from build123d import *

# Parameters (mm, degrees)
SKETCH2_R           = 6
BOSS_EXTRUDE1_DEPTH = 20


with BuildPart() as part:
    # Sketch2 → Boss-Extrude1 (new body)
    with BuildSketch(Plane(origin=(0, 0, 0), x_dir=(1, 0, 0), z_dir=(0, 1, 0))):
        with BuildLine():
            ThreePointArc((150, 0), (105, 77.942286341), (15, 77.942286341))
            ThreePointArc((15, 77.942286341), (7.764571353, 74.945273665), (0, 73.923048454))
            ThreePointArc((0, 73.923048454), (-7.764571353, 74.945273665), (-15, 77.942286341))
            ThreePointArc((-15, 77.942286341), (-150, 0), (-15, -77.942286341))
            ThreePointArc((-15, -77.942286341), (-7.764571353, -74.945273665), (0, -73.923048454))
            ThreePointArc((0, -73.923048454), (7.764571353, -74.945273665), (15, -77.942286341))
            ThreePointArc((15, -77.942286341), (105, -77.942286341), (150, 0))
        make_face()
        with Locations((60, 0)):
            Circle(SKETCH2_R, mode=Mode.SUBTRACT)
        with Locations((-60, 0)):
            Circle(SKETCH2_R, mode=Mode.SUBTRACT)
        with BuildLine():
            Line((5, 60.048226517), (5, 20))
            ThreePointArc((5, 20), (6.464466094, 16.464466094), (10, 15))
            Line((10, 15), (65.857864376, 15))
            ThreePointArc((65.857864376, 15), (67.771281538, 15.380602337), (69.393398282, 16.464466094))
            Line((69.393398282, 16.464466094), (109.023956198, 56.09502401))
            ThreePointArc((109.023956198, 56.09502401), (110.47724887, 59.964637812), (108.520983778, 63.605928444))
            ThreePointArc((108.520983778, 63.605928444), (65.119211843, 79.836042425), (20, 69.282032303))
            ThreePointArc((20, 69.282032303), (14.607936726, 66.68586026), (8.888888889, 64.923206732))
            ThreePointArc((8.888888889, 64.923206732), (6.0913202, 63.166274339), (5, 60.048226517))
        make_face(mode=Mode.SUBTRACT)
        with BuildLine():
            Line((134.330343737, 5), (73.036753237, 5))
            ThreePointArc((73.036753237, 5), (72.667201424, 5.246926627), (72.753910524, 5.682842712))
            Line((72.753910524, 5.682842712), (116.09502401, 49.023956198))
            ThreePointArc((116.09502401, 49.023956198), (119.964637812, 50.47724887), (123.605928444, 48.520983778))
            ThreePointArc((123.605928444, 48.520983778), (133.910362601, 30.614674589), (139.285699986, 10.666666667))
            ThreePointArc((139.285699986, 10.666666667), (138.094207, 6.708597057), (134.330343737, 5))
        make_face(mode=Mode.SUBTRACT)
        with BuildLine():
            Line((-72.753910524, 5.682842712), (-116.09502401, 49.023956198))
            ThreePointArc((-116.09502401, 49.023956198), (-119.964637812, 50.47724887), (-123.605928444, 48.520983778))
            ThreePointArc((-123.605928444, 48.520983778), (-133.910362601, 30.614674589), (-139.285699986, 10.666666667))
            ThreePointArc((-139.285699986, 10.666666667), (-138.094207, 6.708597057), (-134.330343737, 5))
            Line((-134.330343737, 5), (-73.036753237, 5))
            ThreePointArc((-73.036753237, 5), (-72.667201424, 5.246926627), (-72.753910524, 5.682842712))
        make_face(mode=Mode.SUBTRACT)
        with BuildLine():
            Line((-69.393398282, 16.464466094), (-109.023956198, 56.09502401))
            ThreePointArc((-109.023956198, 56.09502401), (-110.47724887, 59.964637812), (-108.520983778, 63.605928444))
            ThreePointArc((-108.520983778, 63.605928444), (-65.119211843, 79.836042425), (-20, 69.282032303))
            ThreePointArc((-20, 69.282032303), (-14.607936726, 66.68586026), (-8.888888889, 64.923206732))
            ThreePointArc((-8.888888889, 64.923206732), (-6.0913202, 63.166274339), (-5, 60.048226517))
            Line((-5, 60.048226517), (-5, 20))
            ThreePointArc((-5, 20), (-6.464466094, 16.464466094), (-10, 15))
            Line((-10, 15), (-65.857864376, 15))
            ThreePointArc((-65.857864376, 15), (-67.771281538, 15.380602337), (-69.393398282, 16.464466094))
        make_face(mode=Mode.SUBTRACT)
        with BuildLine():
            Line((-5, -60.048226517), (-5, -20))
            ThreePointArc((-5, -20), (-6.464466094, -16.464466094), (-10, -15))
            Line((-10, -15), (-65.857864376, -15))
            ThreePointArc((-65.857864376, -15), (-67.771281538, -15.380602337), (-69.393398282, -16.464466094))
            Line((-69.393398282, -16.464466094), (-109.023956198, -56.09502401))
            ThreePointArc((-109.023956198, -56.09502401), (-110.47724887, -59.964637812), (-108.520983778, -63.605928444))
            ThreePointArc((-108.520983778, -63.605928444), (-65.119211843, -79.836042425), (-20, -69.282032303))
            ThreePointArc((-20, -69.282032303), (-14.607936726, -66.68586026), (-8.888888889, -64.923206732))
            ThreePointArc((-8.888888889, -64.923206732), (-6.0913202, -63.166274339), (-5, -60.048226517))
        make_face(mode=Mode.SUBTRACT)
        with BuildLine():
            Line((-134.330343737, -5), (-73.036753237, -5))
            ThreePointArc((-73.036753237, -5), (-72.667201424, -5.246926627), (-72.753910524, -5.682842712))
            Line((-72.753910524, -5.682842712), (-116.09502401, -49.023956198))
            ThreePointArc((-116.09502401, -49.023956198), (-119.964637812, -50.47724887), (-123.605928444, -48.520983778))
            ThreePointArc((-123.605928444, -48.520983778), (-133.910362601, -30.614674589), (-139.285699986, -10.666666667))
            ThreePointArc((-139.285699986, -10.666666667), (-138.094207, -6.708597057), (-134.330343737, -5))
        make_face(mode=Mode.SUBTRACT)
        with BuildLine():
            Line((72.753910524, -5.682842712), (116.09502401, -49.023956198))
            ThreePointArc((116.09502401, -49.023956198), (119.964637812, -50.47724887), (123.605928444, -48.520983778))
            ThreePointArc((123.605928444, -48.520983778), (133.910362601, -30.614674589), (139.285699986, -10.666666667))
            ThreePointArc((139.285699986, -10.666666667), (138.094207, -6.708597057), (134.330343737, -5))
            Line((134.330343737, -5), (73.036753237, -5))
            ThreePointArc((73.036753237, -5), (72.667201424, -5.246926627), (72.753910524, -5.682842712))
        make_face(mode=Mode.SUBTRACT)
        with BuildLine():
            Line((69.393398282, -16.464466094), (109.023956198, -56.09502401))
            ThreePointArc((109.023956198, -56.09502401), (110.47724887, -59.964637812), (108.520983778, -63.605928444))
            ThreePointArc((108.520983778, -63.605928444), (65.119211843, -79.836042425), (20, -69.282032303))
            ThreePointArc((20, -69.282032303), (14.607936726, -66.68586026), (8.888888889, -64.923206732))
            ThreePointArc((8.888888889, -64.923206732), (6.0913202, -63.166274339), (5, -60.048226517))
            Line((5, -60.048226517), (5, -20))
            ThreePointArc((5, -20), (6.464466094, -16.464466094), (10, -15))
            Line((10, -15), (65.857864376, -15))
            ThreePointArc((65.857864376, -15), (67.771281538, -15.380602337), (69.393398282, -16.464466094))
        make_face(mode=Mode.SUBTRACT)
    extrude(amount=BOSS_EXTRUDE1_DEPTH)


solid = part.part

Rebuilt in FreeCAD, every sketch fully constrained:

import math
import FreeCAD as App
import Part
import Sketcher

V = App.Vector
Q = App.Units.Quantity

doc = App.newDocument("Part")
body = doc.addObject("PartDesign::Body", "Body")

sketch1 = doc.addObject("Sketcher::SketchObject", "Sketch")
body.addObject(sketch1)
sketch1.AttachmentSupport = (doc.XZ_Plane, [""])
sketch1.MapMode = "FlatFace"
sketch1.addGeometry([
    Part.ArcOfCircle(Part.Circle(V(60, 0, 0), V(0, 0, 1), 90), math.radians(-120), math.radians(0)),
    Part.ArcOfCircle(Part.Circle(V(0, -103.92, 0), V(0, 0, 1), 30), math.radians(60), math.radians(90)),
    Part.ArcOfCircle(Part.Circle(V(0, -103.92, 0), V(0, 0, 1), 30), math.radians(90), math.radians(120)),
    Part.ArcOfCircle(Part.Circle(V(-60, 0, 0), V(0, 0, 1), 90), math.radians(60), math.radians(300)),
    Part.ArcOfCircle(Part.Circle(V(0, 103.92, 0), V(0, 0, 1), 30), math.radians(-120), math.radians(-90)),
    Part.ArcOfCircle(Part.Circle(V(0, 103.92, 0), V(0, 0, 1), 30), math.radians(-90), math.radians(-60)),
    Part.ArcOfCircle(Part.Circle(V(60, 0, 0), V(0, 0, 1), 90), math.radians(0), math.radians(120)),
    Part.LineSegment(V(-5, 20, 0), V(-5, 60.05, 0)),
    Part.ArcOfCircle(Part.Circle(V(-10, 60.05, 0), V(0, 0, 1), 5), math.radians(0), math.radians(77)),
    Part.ArcOfCircle(Part.Circle(V(0, 103.92, 0), V(0, 0, 1), 40), math.radians(-120), math.radians(-102.84)),
    Part.ArcOfCircle(Part.Circle(V(-60, 0, 0), V(0, 0, 1), 80), math.radians(60), math.radians(127)),
    Part.ArcOfCircle(Part.Circle(V(-105.49, 59.63, 0), V(0, 0, 1), 5), math.radians(127), math.radians(225)),
    Part.LineSegment(V(-109.02, 56.1, 0), V(-69.39, 16.46, 0)),
    Part.ArcOfCircle(Part.Circle(V(-65.86, 20, 0), V(0, 0, 1), 5), math.radians(-135), math.radians(-90)),
    Part.LineSegment(V(-65.86, 15, 0), V(-10, 15, 0)),
    Part.ArcOfCircle(Part.Circle(V(-10, 20, 0), V(0, 0, 1), 5), math.radians(-90), math.radians(0)),
    Part.ArcOfCircle(Part.Circle(V(-134.33, 10, 0), V(0, 0, 1), 5), math.radians(172), math.radians(270)),
    Part.LineSegment(V(-134.33, 5, 0), V(-73.04, 5, 0)),
    Part.ArcOfCircle(Part.Circle(V(-73.04, 5.4, 0), V(0, 0, 1), 0.4), math.radians(-90), math.radians(45)),
    Part.LineSegment(V(-72.75, 5.68, 0), V(-116.1, 49.02, 0)),
    Part.ArcOfCircle(Part.Circle(V(-119.63, 45.49, 0), V(0, 0, 1), 5), math.radians(45), math.radians(143)),
    Part.ArcOfCircle(Part.Circle(V(-60, 0, 0), V(0, 0, 1), 80), math.radians(143), math.radians(172)),
    Part.Circle(V(-60, 0, 0), V(0, 0, 1), 6),
    Part.ArcOfCircle(Part.Circle(V(65.86, 20, 0), V(0, 0, 1), 5), math.radians(-90), math.radians(-45)),
    Part.LineSegment(V(69.39, 16.46, 0), V(109.02, 56.1, 0)),
    Part.ArcOfCircle(Part.Circle(V(105.49, 59.63, 0), V(0, 0, 1), 5), math.radians(-45), math.radians(53)),
    Part.ArcOfCircle(Part.Circle(V(60, 0, 0), V(0, 0, 1), 80), math.radians(53), math.radians(120)),
    Part.ArcOfCircle(Part.Circle(V(0, 103.92, 0), V(0, 0, 1), 40), math.radians(-77.16), math.radians(-60)),
    Part.ArcOfCircle(Part.Circle(V(10, 60.05, 0), V(0, 0, 1), 5), math.radians(103), math.radians(180)),
    Part.LineSegment(V(5, 60.05, 0), V(5, 20, 0)),
    Part.ArcOfCircle(Part.Circle(V(10, 20, 0), V(0, 0, 1), 5), math.radians(180), math.radians(270)),
    Part.LineSegment(V(10, 15, 0), V(65.86, 15, 0)),
    Part.Circle(V(60, 0, 0), V(0, 0, 1), 6),
    Part.LineSegment(V(116.1, 49.02, 0), V(72.75, 5.68, 0)),
    Part.ArcOfCircle(Part.Circle(V(73.04, 5.4, 0), V(0, 0, 1), 0.4), math.radians(135), math.radians(270)),
    Part.LineSegment(V(73.04, 5, 0), V(134.33, 5, 0)),
    Part.ArcOfCircle(Part.Circle(V(134.33, 10, 0), V(0, 0, 1), 5), math.radians(-90), math.radians(8)),
    Part.ArcOfCircle(Part.Circle(V(60, 0, 0), V(0, 0, 1), 80), math.radians(8), math.radians(37)),
    Part.ArcOfCircle(Part.Circle(V(119.63, 45.49, 0), V(0, 0, 1), 5), math.radians(37), math.radians(135)),
    Part.LineSegment(V(-116.1, -49.02, 0), V(-72.75, -5.68, 0)),
    Part.ArcOfCircle(Part.Circle(V(-73.04, -5.4, 0), V(0, 0, 1), 0.4), math.radians(-45), math.radians(90)),
    Part.LineSegment(V(-73.04, -5, 0), V(-134.33, -5, 0)),
    Part.ArcOfCircle(Part.Circle(V(-134.33, -10, 0), V(0, 0, 1), 5), math.radians(90), math.radians(188)),
    Part.ArcOfCircle(Part.Circle(V(-60, 0, 0), V(0, 0, 1), 80), math.radians(-172), math.radians(-143)),
    Part.ArcOfCircle(Part.Circle(V(-119.63, -45.49, 0), V(0, 0, 1), 5), math.radians(-143), math.radians(-45)),
    Part.ArcOfCircle(Part.Circle(V(-65.86, -20, 0), V(0, 0, 1), 5), math.radians(90), math.radians(135)),
    Part.LineSegment(V(-69.39, -16.46, 0), V(-109.02, -56.1, 0)),
    Part.ArcOfCircle(Part.Circle(V(-105.49, -59.63, 0), V(0, 0, 1), 5), math.radians(135), math.radians(233)),
    Part.ArcOfCircle(Part.Circle(V(-60, 0, 0), V(0, 0, 1), 80), math.radians(-127), math.radians(-60)),
    Part.ArcOfCircle(Part.Circle(V(0, -103.92, 0), V(0, 0, 1), 40), math.radians(102.84), math.radians(120)),
    Part.ArcOfCircle(Part.Circle(V(-10, -60.05, 0), V(0, 0, 1), 5), math.radians(-77), math.radians(0)),
    Part.LineSegment(V(-5, -60.05, 0), V(-5, -20, 0)),
    Part.ArcOfCircle(Part.Circle(V(-10, -20, 0), V(0, 0, 1), 5), math.radians(0), math.radians(90)),
    Part.LineSegment(V(-10, -15, 0), V(-65.86, -15, 0)),
    Part.ArcOfCircle(Part.Circle(V(134.33, -10, 0), V(0, 0, 1), 5), math.radians(-8), math.radians(90)),
    Part.LineSegment(V(134.33, -5, 0), V(73.04, -5, 0)),
    Part.ArcOfCircle(Part.Circle(V(73.04, -5.4, 0), V(0, 0, 1), 0.4), math.radians(90), math.radians(225)),
    Part.LineSegment(V(72.75, -5.68, 0), V(116.1, -49.02, 0)),
    Part.ArcOfCircle(Part.Circle(V(119.63, -45.49, 0), V(0, 0, 1), 5), math.radians(-135), math.radians(-37)),
    Part.ArcOfCircle(Part.Circle(V(60, 0, 0), V(0, 0, 1), 80), math.radians(-37), math.radians(-8)),
    Part.LineSegment(V(5, -20, 0), V(5, -60.05, 0)),
    Part.ArcOfCircle(Part.Circle(V(10, -60.05, 0), V(0, 0, 1), 5), math.radians(180), math.radians(257)),
    Part.ArcOfCircle(Part.Circle(V(0, -103.92, 0), V(0, 0, 1), 40), math.radians(60), math.radians(77.16)),
    Part.ArcOfCircle(Part.Circle(V(60, 0, 0), V(0, 0, 1), 80), math.radians(-120), math.radians(-53)),
    Part.ArcOfCircle(Part.Circle(V(105.49, -59.63, 0), V(0, 0, 1), 5), math.radians(-53), math.radians(45)),
    Part.LineSegment(V(109.02, -56.1, 0), V(69.39, -16.46, 0)),
    Part.ArcOfCircle(Part.Circle(V(65.86, -20, 0), V(0, 0, 1), 5), math.radians(45), math.radians(90)),
    Part.LineSegment(V(65.86, -15, 0), V(10, -15, 0)),
    Part.ArcOfCircle(Part.Circle(V(10, -20, 0), V(0, 0, 1), 5), math.radians(90), math.radians(180)),
], False)
sketch1.addConstraint([
    Sketcher.Constraint("Tangent", 0, 1, 1, 1),
    Sketcher.Constraint("Tangent", 1, 2, 2, 1),
    Sketcher.Constraint("Tangent", 2, 2, 3, 2),
    Sketcher.Constraint("Tangent", 3, 1, 4, 1),
    Sketcher.Constraint("Tangent", 4, 2, 5, 1),
    Sketcher.Constraint("Tangent", 5, 2, 6, 2),
    Sketcher.Constraint("Tangent", 6, 1, 0, 2),
    Sketcher.Constraint("Tangent", 7, 2, 8, 1),
    Sketcher.Constraint("Tangent", 8, 2, 9, 2),
    Sketcher.Constraint("Tangent", 9, 1, 10, 1),
    Sketcher.Constraint("Tangent", 10, 2, 11, 1),
    Sketcher.Constraint("Tangent", 11, 2, 12, 1),
    Sketcher.Constraint("Tangent", 12, 2, 13, 1),
    Sketcher.Constraint("Tangent", 13, 2, 14, 1),
    Sketcher.Constraint("Tangent", 14, 2, 15, 1),
    Sketcher.Constraint("Tangent", 15, 2, 7, 1),
    Sketcher.Constraint("Tangent", 16, 2, 17, 1),
    Sketcher.Constraint("Tangent", 17, 2, 18, 1),
    Sketcher.Constraint("Tangent", 18, 2, 19, 1),
    Sketcher.Constraint("Tangent", 19, 2, 20, 1),
    Sketcher.Constraint("Tangent", 20, 2, 21, 1),
    Sketcher.Constraint("Tangent", 21, 2, 16, 1),
    Sketcher.Constraint("Tangent", 23, 2, 24, 1),
    Sketcher.Constraint("Tangent", 24, 2, 25, 1),
    Sketcher.Constraint("Tangent", 25, 2, 26, 1),
    Sketcher.Constraint("Tangent", 26, 2, 27, 2),
    Sketcher.Constraint("Tangent", 27, 1, 28, 1),
    Sketcher.Constraint("Tangent", 28, 2, 29, 1),
    Sketcher.Constraint("Tangent", 29, 2, 30, 1),
    Sketcher.Constraint("Tangent", 30, 2, 31, 1),
    Sketcher.Constraint("Tangent", 31, 2, 23, 1),
    Sketcher.Constraint("Tangent", 33, 2, 34, 1),
    Sketcher.Constraint("Tangent", 34, 2, 35, 1),
    Sketcher.Constraint("Tangent", 35, 2, 36, 1),
    Sketcher.Constraint("Tangent", 36, 2, 37, 1),
    Sketcher.Constraint("Tangent", 37, 2, 38, 1),
    Sketcher.Constraint("Tangent", 38, 2, 33, 1),
    Sketcher.Constraint("Tangent", 39, 2, 40, 1),
    Sketcher.Constraint("Tangent", 40, 2, 41, 1),
    Sketcher.Constraint("Tangent", 41, 2, 42, 1),
    Sketcher.Constraint("Tangent", 42, 2, 43, 1),
    Sketcher.Constraint("Tangent", 43, 2, 44, 1),
    Sketcher.Constraint("Tangent", 44, 2, 39, 1),
    Sketcher.Constraint("Tangent", 45, 2, 46, 1),
    Sketcher.Constraint("Tangent", 46, 2, 47, 1),
    Sketcher.Constraint("Tangent", 47, 2, 48, 1),
    Sketcher.Constraint("Tangent", 48, 2, 49, 2),
    Sketcher.Constraint("Tangent", 49, 1, 50, 1),
    Sketcher.Constraint("Tangent", 50, 2, 51, 1),
    Sketcher.Constraint("Tangent", 51, 2, 52, 1),
    Sketcher.Constraint("Tangent", 52, 2, 53, 1),
    Sketcher.Constraint("Tangent", 53, 2, 45, 1),
    Sketcher.Constraint("Tangent", 54, 2, 55, 1),
    Sketcher.Constraint("Tangent", 55, 2, 56, 1),
    Sketcher.Constraint("Tangent", 56, 2, 57, 1),
    Sketcher.Constraint("Tangent", 57, 2, 58, 1),
    Sketcher.Constraint("Tangent", 58, 2, 59, 1),
    Sketcher.Constraint("Tangent", 59, 2, 54, 1),
    Sketcher.Constraint("Tangent", 60, 2, 61, 1),
    Sketcher.Constraint("Tangent", 61, 2, 62, 2),
    Sketcher.Constraint("Tangent", 62, 1, 63, 1),
    Sketcher.Constraint("Tangent", 63, 2, 64, 1),
    Sketcher.Constraint("Tangent", 64, 2, 65, 1),
    Sketcher.Constraint("Tangent", 65, 2, 66, 1),
    Sketcher.Constraint("Tangent", 66, 2, 67, 1),
    Sketcher.Constraint("Tangent", 67, 2, 68, 1),
    Sketcher.Constraint("Tangent", 68, 2, 60, 1),
    Sketcher.Constraint("Vertical", 7),
    Sketcher.Constraint("Horizontal", 14),
    Sketcher.Constraint("Horizontal", 17),
    Sketcher.Constraint("Vertical", 29),
    Sketcher.Constraint("Horizontal", 31),
    Sketcher.Constraint("Horizontal", 35),
    Sketcher.Constraint("Horizontal", 41),
    Sketcher.Constraint("Vertical", 51),
    Sketcher.Constraint("Horizontal", 53),
    Sketcher.Constraint("Horizontal", 55),
    Sketcher.Constraint("Vertical", 60),
    Sketcher.Constraint("Horizontal", 67),
    Sketcher.Constraint("Coincident", 9, 3, 4, 3),
    Sketcher.Constraint("Coincident", 10, 3, 3, 3),
    Sketcher.Constraint("Coincident", 21, 3, 3, 3),
    Sketcher.Constraint("Coincident", 22, 3, 3, 3),
    Sketcher.Constraint("Coincident", 26, 3, 0, 3),
    Sketcher.Constraint("Coincident", 27, 3, 4, 3),
    Sketcher.Constraint("Coincident", 32, 3, 0, 3),
    Sketcher.Constraint("Coincident", 37, 3, 0, 3),
    Sketcher.Constraint("Coincident", 43, 3, 3, 3),
    Sketcher.Constraint("Coincident", 48, 3, 3, 3),
    Sketcher.Constraint("Coincident", 49, 3, 1, 3),
    Sketcher.Constraint("Coincident", 59, 3, 0, 3),
    Sketcher.Constraint("Coincident", 62, 3, 1, 3),
    Sketcher.Constraint("Coincident", 63, 3, 0, 3),
    Sketcher.Constraint("Equal", 1, 2),
    Sketcher.Constraint("Equal", 0, 3),
    Sketcher.Constraint("Equal", 2, 4),
    Sketcher.Constraint("Equal", 4, 5),
    Sketcher.Constraint("Equal", 3, 6),
    Sketcher.Constraint("Equal", 8, 11),
    Sketcher.Constraint("Equal", 11, 13),
    Sketcher.Constraint("Equal", 13, 15),
    Sketcher.Constraint("Equal", 15, 16),
    Sketcher.Constraint("Equal", 16, 20),
    Sketcher.Constraint("Equal", 10, 21),
    Sketcher.Constraint("Equal", 20, 23),
    Sketcher.Constraint("Equal", 23, 25),
    Sketcher.Constraint("Equal", 21, 26),
    Sketcher.Constraint("Equal", 25, 28),
    Sketcher.Constraint("Equal", 28, 30),
    Sketcher.Constraint("Equal", 22, 32),
    Sketcher.Constraint("Equal", 18, 34),
    Sketcher.Constraint("Equal", 30, 36),
    Sketcher.Constraint("Equal", 26, 37),
    Sketcher.Constraint("Equal", 36, 38),
    Sketcher.Constraint("Equal", 34, 40),
    Sketcher.Constraint("Equal", 38, 42),
    Sketcher.Constraint("Equal", 37, 43),
    Sketcher.Constraint("Equal", 42, 44),
    Sketcher.Constraint("Equal", 44, 45),
    Sketcher.Constraint("Equal", 45, 47),
    Sketcher.Constraint("Equal", 43, 48),
    Sketcher.Constraint("Equal", 47, 50),
    Sketcher.Constraint("Equal", 50, 52),
    Sketcher.Constraint("Equal", 52, 54),
    Sketcher.Constraint("Equal", 40, 56),
    Sketcher.Constraint("Equal", 54, 58),
    Sketcher.Constraint("Equal", 48, 59),
    Sketcher.Constraint("Equal", 58, 61),
    Sketcher.Constraint("Equal", 49, 62),
    Sketcher.Constraint("Equal", 61, 64),
    Sketcher.Constraint("Equal", 64, 66),
    Sketcher.Constraint("Equal", 66, 68),
    Sketcher.Constraint("Symmetric", 0, 3, 3, 3, -1, 1),
    Sketcher.Constraint("Symmetric", 34, 3, 40, 3, -1, 1),
    Sketcher.Constraint("Symmetric", 23, 3, 45, 3, -1, 1),
    Sketcher.Constraint("Symmetric", 18, 3, 56, 3, -1, 1),
    Sketcher.Constraint("Symmetric", 13, 3, 66, 3, -1, 1),
    Sketcher.Constraint("Symmetric", 13, 3, 23, 3, -2),
    Sketcher.Constraint("Symmetric", 11, 3, 25, 3, -2),
    Sketcher.Constraint("Symmetric", 18, 3, 34, 3, -2),
    Sketcher.Constraint("PointOnObject", 1, 2, -2),
    Sketcher.Constraint("PointOnObject", 4, 2, -2),
    Sketcher.Constraint("PointOnObject", 6, 1, -1),
    Sketcher.Constraint("Parallel", 12, 19),
    Sketcher.Constraint("Perpendicular", 19, 24),
    Sketcher.Constraint("Parallel", 24, 33),
    Sketcher.Constraint("Parallel", 33, 39),
    Sketcher.Constraint("Parallel", 39, 46),
    Sketcher.Constraint("Perpendicular", 46, 57),
    Sketcher.Constraint("Parallel", 57, 65),
    Sketcher.Constraint("Horizontal", 8, 3, 28, 3),
    Sketcher.Constraint("Horizontal", 50, 3, 61, 3),
    Sketcher.Constraint("Vertical", 15, 3, 50, 3),
    Sketcher.Constraint("Diameter", 22, Q("12 mm")),
    Sketcher.Constraint("Radius", 0, Q("90 mm")),
    Sketcher.Constraint("Radius", 1, Q("30 mm")),
    Sketcher.Constraint("Radius", 8, Q("5 mm")),
    Sketcher.Constraint("Radius", 9, Q("40 mm")),
    Sketcher.Constraint("Radius", 18, Q("0.4 mm")),
    Sketcher.Constraint("DistanceX", -1, 1, 0, 3, Q("60 mm")),
    Sketcher.Constraint("DistanceX", 8, 3, -1, 1, Q("10 mm")),
    Sketcher.Constraint("DistanceY", -1, 1, 13, 3, Q("20 mm")),
    Sketcher.Constraint("DistanceY", -1, 1, 16, 3, Q("10 mm")),
    Sketcher.Constraint("DistanceX", 17, 1, 17, 2, Q("61.29359 mm")),
    Sketcher.Constraint("DistanceX", 12, 2, -1, 1, Q("69.393398 mm")),
])
pad1 = doc.addObject("PartDesign::Pad", "Pad")
body.addObject(pad1)
pad1.Profile = sketch1
pad1.Length = 20
pad1.Reversed = True

doc.recompute()
